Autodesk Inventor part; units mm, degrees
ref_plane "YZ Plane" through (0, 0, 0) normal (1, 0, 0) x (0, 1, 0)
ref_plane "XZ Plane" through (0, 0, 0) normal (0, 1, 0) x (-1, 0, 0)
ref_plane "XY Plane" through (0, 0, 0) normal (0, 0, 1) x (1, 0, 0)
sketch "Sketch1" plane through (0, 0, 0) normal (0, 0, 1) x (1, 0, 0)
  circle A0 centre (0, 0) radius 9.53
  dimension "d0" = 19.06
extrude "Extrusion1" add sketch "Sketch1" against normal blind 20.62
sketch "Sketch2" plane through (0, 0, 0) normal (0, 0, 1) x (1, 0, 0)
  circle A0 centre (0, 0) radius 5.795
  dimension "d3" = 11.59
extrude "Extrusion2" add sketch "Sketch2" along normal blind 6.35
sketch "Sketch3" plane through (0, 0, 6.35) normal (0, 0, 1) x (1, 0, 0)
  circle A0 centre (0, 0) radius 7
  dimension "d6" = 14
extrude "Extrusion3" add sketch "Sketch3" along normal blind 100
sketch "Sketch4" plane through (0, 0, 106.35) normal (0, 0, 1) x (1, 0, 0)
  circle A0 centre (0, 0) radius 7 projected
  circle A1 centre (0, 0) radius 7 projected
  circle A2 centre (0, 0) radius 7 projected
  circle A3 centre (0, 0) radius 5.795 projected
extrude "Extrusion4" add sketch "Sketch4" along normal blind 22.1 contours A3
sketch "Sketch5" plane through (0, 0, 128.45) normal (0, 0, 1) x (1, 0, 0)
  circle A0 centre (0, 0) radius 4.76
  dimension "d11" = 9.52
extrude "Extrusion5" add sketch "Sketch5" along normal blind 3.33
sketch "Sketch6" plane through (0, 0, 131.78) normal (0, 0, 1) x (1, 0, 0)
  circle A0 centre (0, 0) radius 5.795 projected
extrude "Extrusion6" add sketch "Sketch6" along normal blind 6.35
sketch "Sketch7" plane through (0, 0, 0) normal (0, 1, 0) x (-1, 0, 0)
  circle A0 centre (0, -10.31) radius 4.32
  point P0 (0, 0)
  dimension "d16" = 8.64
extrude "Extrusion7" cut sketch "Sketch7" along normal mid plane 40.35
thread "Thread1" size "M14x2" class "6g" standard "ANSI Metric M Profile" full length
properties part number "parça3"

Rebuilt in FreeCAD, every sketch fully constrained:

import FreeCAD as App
import Part
import Sketcher

V = App.Vector

doc = App.newDocument("Part")
body = doc.addObject("PartDesign::Body", "Body")

# Sketch on XY plane
sketch1 = doc.addObject("Sketcher::SketchObject", "Sketch")
body.addObject(sketch1)
sketch1.AttachmentSupport = (doc.XY_Plane, [""])
sketch1.MapMode = "FlatFace"
sketch1.addGeometry(Part.Circle(V(0, 0, 0), V(0, 0, 1), 10), False)
sketch1.addConstraint([
    Sketcher.Constraint("Coincident", 0, 3, -1, 1),
    Sketcher.Constraint("Diameter", 0, 19.06),
])
pad1 = doc.addObject("PartDesign::Pad", "Pad")
body.addObject(pad1)
pad1.Profile = sketch1
pad1.Length = 20.62
pad1.Reversed = True

# Sketch on XY plane
sketch2 = doc.addObject("Sketcher::SketchObject", "Sketch001")
body.addObject(sketch2)
sketch2.AttachmentSupport = (doc.XY_Plane, [""])
sketch2.MapMode = "FlatFace"
sketch2.addGeometry(Part.Circle(V(0, 0, 0), V(0, 0, 1), 6), False)
sketch2.addConstraint([
    Sketcher.Constraint("Coincident", 0, 3, -1, 1),
    Sketcher.Constraint("Diameter", 0, 11.59),
])
pad2 = doc.addObject("PartDesign::Pad", "Pad001")
body.addObject(pad2)
pad2.Profile = sketch2
pad2.Length = 6.35

# Sketch on XY plane
sketch3 = doc.addObject("Sketcher::SketchObject", "Sketch002")
body.addObject(sketch3)
sketch3.AttachmentSupport = (doc.XY_Plane, [""])
sketch3.MapMode = "FlatFace"
sketch3.AttachmentOffset = App.Placement(V(0, 0, 6.35), App.Rotation())
sketch3.addGeometry(Part.Circle(V(0, 0, 0), V(0, 0, 1), 7), False)
sketch3.addConstraint([
    Sketcher.Constraint("Coincident", 0, 3, -1, 1),
    Sketcher.Constraint("Diameter", 0, 14.0),
])
pad3 = doc.addObject("PartDesign::Pad", "Pad002")
body.addObject(pad3)
pad3.Profile = sketch3
pad3.Length = 100

# Sketch on XY plane
sketch4 = doc.addObject("Sketcher::SketchObject", "Sketch003")
body.addObject(sketch4)
sketch4.AttachmentSupport = (doc.XY_Plane, [""])
sketch4.MapMode = "FlatFace"
sketch4.AttachmentOffset = App.Placement(V(0, 0, 106.35), App.Rotation())
sketch4.addGeometry(Part.Circle(V(0, 0, 0), V(0, 0, 1), 6), False)
sketch4.addConstraint([
    Sketcher.Constraint("Coincident", 0, 3, -1, 1),
    Sketcher.Constraint("Diameter", 0, 11.59),
])
pad4 = doc.addObject("PartDesign::Pad", "Pad003")
body.addObject(pad4)
pad4.Profile = sketch4
pad4.Length = 22.1

# Sketch on XY plane
sketch5 = doc.addObject("Sketcher::SketchObject", "Sketch004")
body.addObject(sketch5)
sketch5.AttachmentSupport = (doc.XY_Plane, [""])
sketch5.MapMode = "FlatFace"
sketch5.AttachmentOffset = App.Placement(V(0, 0, 128.45), App.Rotation())
sketch5.addGeometry(Part.Circle(V(0, 0, 0), V(0, 0, 1), 4.8), False)
sketch5.addConstraint([
    Sketcher.Constraint("Coincident", 0, 3, -1, 1),
    Sketcher.Constraint("Diameter", 0, 9.52),
])
pad5 = doc.addObject("PartDesign::Pad", "Pad004")
body.addObject(pad5)
pad5.Profile = sketch5
pad5.Length = 3.33

# Sketch on XY plane
sketch6 = doc.addObject("Sketcher::SketchObject", "Sketch005")
body.addObject(sketch6)
sketch6.AttachmentSupport = (doc.XY_Plane, [""])
sketch6.MapMode = "FlatFace"
sketch6.AttachmentOffset = App.Placement(V(0, 0, 131.78), App.Rotation())
sketch6.addGeometry(Part.Circle(V(0, 0, 0), V(0, 0, 1), 6), False)
sketch6.addConstraint([
    Sketcher.Constraint("Coincident", 0, 3, -1, 1),
    Sketcher.Constraint("Diameter", 0, 11.59),
])
pad6 = doc.addObject("PartDesign::Pad", "Pad005")
body.addObject(pad6)
pad6.Profile = sketch6
pad6.Length = 6.35

# Sketch on XZ plane
sketch7 = doc.addObject("Sketcher::SketchObject", "Sketch006")
body.addObject(sketch7)
sketch7.AttachmentSupport = (doc.XZ_Plane, [""])
sketch7.MapMode = "FlatFace"
sketch7.addGeometry(Part.Circle(V(0, -10.3, 0), V(0, 0, 1), 4.3), False)
sketch7.addConstraint([
    Sketcher.Constraint("PointOnObject", 0, 3, -2),
    Sketcher.Constraint("Diameter", 0, 8.64),
    Sketcher.Constraint("DistanceY", 0, 3, -1, 1, 10.31),
])
pocket1 = doc.addObject("PartDesign::Pocket", "Pocket")
body.addObject(pocket1)
pocket1.Profile = sketch7
pocket1.Length = 40.35
pocket1.Midplane = True

doc.recompute()
